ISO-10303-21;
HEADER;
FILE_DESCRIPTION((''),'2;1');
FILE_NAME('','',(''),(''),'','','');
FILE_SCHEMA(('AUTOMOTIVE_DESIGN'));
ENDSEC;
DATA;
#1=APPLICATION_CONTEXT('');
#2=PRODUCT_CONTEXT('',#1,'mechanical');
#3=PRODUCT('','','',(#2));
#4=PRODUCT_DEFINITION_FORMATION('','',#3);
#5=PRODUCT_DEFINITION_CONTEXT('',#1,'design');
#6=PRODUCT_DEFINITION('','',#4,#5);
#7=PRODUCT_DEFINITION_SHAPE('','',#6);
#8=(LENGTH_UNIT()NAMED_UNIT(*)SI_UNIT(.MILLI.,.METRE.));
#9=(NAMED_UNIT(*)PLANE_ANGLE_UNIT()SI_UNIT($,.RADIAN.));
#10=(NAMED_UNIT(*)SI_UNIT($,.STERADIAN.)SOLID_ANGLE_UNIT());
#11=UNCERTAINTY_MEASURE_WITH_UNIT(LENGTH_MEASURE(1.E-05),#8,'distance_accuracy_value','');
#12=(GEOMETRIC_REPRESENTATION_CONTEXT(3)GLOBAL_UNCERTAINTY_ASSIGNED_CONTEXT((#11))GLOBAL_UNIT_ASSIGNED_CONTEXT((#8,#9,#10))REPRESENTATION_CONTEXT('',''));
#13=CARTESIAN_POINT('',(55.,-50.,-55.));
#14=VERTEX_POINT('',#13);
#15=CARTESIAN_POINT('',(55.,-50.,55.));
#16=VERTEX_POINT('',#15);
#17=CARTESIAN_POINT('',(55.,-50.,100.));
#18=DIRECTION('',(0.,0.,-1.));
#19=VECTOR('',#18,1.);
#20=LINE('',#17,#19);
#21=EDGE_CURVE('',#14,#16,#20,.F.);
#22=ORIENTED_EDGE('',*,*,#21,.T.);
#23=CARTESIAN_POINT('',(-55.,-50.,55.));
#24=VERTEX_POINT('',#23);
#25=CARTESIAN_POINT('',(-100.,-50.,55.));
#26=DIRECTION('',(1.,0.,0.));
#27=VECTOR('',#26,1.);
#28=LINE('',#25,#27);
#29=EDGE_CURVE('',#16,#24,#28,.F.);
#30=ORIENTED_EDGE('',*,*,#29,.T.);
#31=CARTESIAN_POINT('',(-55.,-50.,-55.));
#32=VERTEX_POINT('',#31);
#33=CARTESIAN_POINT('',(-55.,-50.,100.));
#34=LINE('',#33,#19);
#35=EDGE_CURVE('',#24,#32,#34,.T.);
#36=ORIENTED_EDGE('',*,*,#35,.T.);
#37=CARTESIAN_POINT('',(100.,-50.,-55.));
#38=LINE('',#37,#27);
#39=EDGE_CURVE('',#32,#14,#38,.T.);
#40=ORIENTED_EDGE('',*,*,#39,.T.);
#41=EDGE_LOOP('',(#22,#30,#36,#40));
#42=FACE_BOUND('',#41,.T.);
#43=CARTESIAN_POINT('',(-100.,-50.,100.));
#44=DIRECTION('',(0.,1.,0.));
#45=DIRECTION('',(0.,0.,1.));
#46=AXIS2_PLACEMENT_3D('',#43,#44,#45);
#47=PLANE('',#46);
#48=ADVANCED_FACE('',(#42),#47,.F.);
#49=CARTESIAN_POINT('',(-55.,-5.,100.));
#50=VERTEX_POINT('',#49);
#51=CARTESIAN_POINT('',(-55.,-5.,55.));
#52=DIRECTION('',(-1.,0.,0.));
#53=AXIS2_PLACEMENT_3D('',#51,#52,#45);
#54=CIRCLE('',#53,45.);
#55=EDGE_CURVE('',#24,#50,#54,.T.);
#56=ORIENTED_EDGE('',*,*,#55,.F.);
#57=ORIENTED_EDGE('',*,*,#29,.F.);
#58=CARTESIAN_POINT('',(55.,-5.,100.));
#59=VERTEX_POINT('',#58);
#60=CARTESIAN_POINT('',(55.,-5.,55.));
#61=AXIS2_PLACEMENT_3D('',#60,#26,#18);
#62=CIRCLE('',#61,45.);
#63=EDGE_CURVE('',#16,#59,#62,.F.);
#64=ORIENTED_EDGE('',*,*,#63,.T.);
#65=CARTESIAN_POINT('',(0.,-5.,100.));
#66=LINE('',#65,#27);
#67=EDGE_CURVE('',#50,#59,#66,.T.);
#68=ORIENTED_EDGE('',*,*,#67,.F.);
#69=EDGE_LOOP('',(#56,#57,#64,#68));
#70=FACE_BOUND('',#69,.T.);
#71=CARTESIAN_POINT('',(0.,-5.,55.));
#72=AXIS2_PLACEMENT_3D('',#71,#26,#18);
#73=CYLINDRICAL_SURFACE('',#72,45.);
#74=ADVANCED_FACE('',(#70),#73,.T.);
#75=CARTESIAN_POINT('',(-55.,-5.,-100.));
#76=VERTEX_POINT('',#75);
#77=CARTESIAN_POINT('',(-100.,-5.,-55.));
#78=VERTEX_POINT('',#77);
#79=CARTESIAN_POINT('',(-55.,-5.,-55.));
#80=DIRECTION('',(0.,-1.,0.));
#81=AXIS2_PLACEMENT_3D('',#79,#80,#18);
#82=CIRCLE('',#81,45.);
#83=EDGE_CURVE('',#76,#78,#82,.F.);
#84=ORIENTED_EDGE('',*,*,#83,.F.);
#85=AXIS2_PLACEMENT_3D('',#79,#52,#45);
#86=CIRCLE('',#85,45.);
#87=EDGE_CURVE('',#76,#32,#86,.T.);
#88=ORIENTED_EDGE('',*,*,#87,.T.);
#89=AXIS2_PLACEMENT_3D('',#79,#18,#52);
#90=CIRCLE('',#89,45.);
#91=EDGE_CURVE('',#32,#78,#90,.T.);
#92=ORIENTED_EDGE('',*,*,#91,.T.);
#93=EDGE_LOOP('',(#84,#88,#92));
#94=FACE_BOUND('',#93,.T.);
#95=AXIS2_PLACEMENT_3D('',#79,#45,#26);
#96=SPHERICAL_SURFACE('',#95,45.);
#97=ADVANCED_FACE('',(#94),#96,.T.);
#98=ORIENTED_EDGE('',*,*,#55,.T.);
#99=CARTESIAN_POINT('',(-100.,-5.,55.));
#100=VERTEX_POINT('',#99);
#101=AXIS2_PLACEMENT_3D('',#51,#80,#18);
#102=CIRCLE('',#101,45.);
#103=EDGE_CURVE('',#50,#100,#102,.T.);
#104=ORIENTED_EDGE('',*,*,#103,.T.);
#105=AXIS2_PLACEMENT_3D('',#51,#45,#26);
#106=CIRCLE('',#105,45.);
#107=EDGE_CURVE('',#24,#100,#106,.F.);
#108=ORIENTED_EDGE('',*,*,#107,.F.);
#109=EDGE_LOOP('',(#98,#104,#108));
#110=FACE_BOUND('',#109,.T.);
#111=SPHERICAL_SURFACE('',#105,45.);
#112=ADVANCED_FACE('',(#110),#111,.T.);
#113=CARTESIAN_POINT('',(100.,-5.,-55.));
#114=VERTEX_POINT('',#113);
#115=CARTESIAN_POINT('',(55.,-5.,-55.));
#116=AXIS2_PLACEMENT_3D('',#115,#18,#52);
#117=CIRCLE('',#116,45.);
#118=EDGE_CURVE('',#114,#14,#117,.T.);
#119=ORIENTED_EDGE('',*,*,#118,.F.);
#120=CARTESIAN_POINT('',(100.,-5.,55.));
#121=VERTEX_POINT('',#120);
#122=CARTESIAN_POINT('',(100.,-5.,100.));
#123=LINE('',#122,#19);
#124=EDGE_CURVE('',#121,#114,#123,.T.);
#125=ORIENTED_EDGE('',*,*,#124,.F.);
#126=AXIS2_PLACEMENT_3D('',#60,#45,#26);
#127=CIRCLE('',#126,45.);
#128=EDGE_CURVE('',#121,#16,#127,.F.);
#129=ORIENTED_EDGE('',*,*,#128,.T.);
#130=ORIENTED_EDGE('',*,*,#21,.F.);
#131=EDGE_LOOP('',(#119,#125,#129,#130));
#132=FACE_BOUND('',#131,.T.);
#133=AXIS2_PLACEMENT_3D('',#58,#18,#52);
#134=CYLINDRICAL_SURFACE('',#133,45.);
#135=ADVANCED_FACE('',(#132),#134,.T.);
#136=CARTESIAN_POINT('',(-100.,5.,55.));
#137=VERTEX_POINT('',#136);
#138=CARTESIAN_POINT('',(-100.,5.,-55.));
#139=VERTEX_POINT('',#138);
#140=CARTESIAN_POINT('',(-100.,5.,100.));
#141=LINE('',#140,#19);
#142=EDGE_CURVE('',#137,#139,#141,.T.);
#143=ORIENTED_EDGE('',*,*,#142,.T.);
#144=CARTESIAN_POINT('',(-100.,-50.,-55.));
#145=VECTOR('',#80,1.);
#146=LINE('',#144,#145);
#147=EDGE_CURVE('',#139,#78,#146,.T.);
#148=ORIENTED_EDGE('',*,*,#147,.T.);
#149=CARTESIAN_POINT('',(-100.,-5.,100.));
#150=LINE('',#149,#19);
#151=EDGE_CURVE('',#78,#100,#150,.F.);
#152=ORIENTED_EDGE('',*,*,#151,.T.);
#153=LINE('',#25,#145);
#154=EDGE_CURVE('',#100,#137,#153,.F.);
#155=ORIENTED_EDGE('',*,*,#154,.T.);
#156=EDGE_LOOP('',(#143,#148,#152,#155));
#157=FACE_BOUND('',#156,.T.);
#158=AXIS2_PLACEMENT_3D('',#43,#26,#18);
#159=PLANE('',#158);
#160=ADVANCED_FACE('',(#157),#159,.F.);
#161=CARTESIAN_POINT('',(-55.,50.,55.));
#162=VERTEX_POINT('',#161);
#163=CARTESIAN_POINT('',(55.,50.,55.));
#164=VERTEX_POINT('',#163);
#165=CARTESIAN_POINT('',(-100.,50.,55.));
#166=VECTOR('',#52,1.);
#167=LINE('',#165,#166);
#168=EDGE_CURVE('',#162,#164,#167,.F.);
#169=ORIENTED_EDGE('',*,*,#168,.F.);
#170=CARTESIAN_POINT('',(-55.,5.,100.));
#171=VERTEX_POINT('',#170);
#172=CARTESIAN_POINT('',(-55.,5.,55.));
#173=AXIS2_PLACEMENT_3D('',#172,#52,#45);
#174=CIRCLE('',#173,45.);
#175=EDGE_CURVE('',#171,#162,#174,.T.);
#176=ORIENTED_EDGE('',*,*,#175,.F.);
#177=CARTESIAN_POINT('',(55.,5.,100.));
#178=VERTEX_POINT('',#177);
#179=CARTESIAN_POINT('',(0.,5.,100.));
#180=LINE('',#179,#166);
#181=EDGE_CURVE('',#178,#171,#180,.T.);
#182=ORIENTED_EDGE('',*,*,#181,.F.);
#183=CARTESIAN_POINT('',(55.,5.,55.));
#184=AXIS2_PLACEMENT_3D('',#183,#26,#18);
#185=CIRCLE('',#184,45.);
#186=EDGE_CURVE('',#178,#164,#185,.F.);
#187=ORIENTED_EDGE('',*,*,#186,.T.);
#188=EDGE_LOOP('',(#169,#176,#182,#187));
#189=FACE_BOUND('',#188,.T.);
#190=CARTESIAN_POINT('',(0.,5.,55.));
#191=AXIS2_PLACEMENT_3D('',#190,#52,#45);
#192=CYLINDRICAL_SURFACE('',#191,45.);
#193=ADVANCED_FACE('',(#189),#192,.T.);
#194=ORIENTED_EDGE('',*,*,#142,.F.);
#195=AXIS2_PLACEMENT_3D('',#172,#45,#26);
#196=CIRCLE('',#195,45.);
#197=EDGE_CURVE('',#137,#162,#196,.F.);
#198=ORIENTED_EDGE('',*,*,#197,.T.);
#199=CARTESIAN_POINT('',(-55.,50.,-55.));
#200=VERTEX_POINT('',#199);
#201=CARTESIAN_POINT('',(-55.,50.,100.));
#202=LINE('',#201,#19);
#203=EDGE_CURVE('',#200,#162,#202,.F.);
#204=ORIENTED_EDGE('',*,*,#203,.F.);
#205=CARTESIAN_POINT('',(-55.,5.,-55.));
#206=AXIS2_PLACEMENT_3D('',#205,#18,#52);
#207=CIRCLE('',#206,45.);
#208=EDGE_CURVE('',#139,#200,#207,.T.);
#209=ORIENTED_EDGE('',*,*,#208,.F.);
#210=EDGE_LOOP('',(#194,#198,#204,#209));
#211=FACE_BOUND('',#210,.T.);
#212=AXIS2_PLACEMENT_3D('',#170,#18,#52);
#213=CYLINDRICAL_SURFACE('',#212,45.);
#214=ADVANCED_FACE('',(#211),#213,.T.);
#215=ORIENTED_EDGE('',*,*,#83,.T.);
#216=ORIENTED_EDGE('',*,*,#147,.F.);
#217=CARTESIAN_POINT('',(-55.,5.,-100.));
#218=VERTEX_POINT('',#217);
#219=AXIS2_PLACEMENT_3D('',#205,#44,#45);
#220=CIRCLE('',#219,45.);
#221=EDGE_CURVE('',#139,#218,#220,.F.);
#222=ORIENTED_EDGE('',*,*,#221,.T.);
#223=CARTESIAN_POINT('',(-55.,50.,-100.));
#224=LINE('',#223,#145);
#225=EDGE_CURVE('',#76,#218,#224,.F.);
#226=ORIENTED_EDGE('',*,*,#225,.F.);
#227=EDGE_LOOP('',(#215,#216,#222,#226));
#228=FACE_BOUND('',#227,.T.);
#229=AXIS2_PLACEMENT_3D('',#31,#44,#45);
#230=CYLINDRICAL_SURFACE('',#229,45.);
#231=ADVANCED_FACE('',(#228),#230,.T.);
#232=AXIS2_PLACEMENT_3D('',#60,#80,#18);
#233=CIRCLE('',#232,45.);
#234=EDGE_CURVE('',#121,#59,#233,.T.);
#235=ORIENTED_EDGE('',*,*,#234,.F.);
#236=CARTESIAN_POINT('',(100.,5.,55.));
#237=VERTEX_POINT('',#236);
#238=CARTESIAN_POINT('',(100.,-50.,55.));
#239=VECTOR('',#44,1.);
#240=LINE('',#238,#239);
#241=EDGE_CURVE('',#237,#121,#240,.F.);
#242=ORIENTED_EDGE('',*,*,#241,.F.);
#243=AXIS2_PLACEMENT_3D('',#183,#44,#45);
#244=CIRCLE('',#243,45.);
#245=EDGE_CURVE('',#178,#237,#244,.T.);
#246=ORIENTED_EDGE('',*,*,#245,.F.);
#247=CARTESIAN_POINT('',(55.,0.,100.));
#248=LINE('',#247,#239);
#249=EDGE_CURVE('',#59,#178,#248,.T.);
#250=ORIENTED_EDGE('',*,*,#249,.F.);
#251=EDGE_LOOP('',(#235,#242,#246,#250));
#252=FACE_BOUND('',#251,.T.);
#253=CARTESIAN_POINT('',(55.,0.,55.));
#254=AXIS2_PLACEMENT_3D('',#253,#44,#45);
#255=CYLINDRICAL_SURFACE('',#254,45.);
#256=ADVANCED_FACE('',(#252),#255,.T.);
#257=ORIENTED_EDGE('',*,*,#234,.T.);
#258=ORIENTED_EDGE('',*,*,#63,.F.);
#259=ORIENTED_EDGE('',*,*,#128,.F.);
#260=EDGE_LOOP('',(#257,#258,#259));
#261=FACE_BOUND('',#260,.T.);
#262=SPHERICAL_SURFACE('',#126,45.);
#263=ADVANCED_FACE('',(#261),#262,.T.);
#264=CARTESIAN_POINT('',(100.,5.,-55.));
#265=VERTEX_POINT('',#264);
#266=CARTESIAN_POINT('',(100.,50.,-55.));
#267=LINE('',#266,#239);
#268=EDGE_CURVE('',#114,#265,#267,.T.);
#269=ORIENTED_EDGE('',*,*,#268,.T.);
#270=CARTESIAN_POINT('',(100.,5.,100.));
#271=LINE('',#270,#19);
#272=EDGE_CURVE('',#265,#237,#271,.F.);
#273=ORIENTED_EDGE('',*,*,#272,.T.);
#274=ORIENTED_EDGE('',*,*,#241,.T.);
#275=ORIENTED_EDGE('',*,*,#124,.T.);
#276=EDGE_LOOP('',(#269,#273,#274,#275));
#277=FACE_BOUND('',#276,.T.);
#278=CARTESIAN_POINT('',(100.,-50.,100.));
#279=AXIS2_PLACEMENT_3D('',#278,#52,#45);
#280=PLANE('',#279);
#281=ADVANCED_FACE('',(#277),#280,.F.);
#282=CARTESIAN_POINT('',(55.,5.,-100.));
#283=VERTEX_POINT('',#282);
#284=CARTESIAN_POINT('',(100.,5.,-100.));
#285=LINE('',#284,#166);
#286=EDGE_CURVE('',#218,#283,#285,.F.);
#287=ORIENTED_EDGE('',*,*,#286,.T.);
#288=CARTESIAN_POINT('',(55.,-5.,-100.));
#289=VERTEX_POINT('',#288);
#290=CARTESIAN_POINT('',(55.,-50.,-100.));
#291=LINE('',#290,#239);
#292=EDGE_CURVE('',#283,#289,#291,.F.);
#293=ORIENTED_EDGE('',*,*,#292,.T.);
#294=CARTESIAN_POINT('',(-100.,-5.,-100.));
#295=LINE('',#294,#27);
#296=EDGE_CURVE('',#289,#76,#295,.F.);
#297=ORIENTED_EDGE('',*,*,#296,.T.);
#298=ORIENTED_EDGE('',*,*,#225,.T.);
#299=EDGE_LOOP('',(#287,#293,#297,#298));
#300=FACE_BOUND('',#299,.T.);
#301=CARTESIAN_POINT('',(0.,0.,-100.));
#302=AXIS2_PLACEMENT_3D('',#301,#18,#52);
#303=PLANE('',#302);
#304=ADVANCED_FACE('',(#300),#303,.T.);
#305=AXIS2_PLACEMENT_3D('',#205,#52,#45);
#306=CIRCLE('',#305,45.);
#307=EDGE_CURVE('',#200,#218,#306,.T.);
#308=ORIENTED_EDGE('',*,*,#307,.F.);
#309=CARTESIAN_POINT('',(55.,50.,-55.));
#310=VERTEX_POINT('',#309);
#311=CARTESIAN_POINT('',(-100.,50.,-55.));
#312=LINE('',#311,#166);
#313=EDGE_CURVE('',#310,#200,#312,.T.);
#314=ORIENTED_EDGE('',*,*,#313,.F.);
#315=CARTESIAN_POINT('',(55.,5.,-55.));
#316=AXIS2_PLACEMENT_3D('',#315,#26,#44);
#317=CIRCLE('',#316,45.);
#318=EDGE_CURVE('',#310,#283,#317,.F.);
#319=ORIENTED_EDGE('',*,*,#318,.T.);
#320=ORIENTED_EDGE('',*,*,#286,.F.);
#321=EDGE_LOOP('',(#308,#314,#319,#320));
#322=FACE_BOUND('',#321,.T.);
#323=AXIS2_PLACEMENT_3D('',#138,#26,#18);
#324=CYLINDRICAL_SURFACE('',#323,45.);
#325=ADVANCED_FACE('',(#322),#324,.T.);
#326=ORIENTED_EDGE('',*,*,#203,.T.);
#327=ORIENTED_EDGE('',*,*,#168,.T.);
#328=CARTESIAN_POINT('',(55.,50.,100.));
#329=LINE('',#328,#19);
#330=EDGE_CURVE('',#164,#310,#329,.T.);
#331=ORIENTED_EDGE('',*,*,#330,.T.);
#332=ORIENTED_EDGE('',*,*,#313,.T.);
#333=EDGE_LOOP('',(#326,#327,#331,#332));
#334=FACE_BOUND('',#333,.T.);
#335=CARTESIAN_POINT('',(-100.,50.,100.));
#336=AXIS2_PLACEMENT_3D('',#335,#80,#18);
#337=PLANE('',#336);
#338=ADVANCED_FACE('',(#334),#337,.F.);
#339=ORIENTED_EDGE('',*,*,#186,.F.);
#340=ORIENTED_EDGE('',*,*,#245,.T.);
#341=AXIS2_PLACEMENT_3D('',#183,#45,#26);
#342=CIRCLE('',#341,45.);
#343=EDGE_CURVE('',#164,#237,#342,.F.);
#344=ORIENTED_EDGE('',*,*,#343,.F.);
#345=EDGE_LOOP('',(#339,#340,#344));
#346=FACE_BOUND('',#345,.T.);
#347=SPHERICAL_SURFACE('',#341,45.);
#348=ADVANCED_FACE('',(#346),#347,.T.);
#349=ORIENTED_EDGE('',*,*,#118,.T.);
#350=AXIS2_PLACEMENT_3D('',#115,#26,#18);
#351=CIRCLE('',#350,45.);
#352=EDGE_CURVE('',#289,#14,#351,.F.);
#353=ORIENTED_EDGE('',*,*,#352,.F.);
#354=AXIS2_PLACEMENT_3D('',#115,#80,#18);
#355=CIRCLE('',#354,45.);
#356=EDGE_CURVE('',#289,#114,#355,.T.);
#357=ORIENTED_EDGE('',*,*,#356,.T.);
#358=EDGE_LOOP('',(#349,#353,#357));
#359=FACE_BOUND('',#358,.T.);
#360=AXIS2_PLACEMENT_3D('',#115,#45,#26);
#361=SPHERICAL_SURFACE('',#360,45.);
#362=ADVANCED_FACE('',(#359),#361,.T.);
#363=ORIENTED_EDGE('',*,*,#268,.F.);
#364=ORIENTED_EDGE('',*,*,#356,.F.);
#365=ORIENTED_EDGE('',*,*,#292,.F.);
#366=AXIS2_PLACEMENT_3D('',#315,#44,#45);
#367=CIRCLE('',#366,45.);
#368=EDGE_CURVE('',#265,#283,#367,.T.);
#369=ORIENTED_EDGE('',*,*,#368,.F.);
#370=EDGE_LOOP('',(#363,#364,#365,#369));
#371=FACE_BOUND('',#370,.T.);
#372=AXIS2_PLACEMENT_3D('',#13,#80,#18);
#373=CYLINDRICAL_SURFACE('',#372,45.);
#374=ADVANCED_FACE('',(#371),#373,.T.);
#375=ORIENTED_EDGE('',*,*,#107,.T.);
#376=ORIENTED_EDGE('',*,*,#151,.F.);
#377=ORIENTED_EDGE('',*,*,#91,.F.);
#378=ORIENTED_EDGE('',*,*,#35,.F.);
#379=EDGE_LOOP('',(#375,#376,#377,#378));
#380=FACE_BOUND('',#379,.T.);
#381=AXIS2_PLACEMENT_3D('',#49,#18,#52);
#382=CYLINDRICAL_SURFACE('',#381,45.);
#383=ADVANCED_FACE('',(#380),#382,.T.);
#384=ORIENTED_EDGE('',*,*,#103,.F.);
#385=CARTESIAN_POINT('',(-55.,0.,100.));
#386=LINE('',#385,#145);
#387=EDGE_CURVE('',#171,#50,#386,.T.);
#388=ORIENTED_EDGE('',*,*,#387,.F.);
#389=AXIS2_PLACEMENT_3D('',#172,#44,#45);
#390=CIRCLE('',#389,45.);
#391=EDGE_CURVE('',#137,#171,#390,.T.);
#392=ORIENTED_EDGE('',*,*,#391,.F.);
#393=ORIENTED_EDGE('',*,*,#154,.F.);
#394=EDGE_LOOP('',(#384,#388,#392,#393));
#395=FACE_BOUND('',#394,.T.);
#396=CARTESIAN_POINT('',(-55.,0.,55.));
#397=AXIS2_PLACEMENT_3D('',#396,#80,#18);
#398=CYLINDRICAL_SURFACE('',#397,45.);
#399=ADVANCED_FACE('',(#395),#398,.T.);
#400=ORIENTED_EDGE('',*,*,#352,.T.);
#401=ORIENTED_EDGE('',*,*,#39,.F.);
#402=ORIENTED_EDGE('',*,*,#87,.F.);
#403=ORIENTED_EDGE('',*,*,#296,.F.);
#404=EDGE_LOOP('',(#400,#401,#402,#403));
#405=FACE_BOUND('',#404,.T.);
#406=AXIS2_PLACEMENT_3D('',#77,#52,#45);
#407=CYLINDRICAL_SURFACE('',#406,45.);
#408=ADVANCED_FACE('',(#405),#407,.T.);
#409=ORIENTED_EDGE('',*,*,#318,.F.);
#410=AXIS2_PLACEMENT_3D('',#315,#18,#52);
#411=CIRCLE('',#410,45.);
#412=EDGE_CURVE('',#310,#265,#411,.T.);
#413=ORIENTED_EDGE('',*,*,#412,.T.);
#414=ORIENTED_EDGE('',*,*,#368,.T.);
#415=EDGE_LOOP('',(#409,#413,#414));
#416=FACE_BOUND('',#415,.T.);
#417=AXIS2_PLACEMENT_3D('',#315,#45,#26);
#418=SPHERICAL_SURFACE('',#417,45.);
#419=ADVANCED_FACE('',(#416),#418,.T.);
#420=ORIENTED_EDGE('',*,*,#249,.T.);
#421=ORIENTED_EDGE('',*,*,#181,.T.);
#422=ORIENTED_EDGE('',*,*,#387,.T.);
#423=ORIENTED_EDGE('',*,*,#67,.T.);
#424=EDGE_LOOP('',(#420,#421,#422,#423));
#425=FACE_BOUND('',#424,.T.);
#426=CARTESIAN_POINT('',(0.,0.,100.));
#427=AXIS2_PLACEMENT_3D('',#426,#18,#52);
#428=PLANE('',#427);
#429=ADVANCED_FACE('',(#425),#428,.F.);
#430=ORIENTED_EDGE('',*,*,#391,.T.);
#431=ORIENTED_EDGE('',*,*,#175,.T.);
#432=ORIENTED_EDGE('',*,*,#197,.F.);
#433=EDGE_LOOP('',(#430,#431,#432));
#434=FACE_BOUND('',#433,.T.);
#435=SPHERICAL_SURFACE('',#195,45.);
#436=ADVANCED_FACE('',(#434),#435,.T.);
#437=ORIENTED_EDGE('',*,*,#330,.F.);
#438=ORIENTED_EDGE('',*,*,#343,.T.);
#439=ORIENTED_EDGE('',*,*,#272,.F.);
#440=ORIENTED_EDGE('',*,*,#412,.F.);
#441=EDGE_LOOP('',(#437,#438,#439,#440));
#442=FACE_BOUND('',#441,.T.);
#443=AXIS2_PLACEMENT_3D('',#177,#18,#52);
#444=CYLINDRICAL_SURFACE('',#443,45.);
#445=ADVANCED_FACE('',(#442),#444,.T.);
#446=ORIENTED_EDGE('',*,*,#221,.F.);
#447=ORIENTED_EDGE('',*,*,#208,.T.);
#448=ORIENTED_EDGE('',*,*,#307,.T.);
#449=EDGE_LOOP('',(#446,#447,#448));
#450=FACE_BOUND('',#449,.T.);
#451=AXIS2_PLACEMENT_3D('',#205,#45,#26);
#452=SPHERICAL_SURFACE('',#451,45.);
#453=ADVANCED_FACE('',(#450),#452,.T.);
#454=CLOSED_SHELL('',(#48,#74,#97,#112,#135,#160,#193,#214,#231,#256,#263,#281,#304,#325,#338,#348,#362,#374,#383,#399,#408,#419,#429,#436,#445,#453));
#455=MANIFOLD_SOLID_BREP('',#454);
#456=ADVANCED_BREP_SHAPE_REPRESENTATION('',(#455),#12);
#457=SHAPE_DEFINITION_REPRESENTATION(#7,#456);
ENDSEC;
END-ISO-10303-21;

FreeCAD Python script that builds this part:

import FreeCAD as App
import Part
import Sketcher

V = App.Vector


def add_polygon(sketch, points):
    """Adds a closed chain of lines whose ends are joined by coincident constraints."""
    first, n = sketch.GeometryCount, len(points)
    for a, b in zip(points, points[1:] + points[:1]):
        sketch.addGeometry(Part.LineSegment(App.Vector(*a, 0), App.Vector(*b, 0)), False)
    for i in range(n):
        sketch.addConstraint(Sketcher.Constraint("Coincident", first + i, 2, first + (i + 1) % n, 1))

doc = App.newDocument("Part")
body = doc.addObject("PartDesign::Body", "Body")

sketch1 = body.newObject("Sketcher::SketchObject", "Sketch")
sketch1.AttachmentSupport = (doc.getObject("XY_Plane"), [""])
sketch1.MapMode = "FlatFace"
add_polygon(sketch1, [(-100, 50), (-100, -50), (100, -50), (100, 50)])
sketch1.addConstraint([
    Sketcher.Constraint("Vertical", 0),
    Sketcher.Constraint("Horizontal", 1),
    Sketcher.Constraint("Vertical", 2),
    Sketcher.Constraint("Horizontal", 3),
    Sketcher.Constraint("Symmetric", 0, 2, 2, 2, -1, 1),
    Sketcher.Constraint("DistanceX", 1, 1, 1, 2, 200.0),
    Sketcher.Constraint("DistanceY", 0, 2, 0, 1, 100.0),
])
pad1 = body.newObject("PartDesign::Pad", "Pad")
pad1.Profile = sketch1
pad1.Length = 200
pad1.Midplane = True
doc.recompute()

fillet = body.newObject("PartDesign::Fillet", "Fillet")
fillet.Base = (pad1, ["Edge1"])
fillet.UseAllEdges = True
fillet.Radius = 45

doc.recompute()
